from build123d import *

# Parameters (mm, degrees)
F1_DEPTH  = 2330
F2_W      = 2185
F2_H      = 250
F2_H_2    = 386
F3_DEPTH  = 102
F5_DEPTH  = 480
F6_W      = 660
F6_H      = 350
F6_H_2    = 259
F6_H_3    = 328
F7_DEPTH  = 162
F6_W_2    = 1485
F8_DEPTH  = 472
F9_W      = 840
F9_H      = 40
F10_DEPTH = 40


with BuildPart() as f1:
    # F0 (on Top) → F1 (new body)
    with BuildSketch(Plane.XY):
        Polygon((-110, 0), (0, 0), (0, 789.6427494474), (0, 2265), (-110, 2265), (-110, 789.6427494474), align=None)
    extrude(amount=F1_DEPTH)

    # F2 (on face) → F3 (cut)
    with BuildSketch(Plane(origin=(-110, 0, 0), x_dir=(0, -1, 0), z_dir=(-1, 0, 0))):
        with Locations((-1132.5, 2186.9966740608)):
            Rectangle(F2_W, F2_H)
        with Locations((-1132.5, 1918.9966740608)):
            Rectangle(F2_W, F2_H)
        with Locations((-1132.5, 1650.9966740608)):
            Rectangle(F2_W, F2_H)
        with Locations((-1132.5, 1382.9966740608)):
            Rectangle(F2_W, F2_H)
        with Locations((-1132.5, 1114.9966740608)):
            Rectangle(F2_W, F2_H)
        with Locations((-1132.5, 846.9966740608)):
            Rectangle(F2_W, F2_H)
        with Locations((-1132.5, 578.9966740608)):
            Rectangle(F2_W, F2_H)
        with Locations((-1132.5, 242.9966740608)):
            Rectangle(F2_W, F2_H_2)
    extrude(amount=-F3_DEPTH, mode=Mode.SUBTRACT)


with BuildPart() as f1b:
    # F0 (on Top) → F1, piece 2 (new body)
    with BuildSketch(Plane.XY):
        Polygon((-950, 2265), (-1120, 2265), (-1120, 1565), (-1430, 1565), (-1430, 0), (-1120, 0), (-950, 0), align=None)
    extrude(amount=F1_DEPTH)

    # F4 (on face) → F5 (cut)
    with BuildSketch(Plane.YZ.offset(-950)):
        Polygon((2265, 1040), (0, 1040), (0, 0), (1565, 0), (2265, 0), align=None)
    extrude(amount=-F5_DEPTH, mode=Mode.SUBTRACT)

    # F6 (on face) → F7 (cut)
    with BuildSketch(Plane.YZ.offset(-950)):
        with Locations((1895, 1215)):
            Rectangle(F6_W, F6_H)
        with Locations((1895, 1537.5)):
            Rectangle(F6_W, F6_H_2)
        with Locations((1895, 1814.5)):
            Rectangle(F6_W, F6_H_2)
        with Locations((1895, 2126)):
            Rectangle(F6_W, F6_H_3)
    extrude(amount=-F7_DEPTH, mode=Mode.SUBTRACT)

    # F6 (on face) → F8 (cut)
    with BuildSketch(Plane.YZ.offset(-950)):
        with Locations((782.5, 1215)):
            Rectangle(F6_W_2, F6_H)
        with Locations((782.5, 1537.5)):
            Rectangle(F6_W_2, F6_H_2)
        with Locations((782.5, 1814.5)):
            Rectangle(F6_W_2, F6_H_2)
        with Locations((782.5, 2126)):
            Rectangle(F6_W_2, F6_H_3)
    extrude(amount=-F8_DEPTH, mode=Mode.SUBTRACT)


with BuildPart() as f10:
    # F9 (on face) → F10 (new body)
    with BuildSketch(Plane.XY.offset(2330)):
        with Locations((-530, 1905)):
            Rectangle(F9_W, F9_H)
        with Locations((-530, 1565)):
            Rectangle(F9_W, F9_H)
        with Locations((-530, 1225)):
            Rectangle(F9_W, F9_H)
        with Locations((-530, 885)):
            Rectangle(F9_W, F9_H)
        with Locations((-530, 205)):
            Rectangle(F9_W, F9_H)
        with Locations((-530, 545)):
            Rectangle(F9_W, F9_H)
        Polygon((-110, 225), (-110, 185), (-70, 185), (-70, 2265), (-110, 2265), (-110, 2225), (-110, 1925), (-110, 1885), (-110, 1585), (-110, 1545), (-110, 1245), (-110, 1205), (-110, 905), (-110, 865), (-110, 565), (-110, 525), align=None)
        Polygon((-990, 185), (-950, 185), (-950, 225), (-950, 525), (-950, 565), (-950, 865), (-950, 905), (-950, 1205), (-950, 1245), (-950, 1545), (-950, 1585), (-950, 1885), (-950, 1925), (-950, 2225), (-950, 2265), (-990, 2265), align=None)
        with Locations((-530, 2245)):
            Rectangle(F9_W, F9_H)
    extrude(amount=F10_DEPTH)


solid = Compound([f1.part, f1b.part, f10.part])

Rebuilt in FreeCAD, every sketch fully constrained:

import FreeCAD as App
import Part
import Sketcher

V = App.Vector
Q = App.Units.Quantity


def add_polygon(sketch, points):
    """Adds a closed chain of lines whose ends are joined by coincident constraints."""
    first, n = sketch.GeometryCount, len(points)
    for a, b in zip(points, points[1:] + points[:1]):
        sketch.addGeometry(Part.LineSegment(App.Vector(*a, 0), App.Vector(*b, 0)), False)
    for i in range(n):
        sketch.addConstraint(Sketcher.Constraint("Coincident", first + i, 2, first + (i + 1) % n, 1))

doc = App.newDocument("Part")
body = doc.addObject("PartDesign::Body", "Body")

# Sketch on XY plane
sketch1 = doc.addObject("Sketcher::SketchObject", "Sketch")
body.addObject(sketch1)
sketch1.AttachmentSupport = (doc.XY_Plane, [""])
sketch1.MapMode = "FlatFace"
add_polygon(sketch1, [(-110, 0), (0, 0), (0, 2265), (-110, 2265)])  # lines 0-3
sketch1.addConstraint([
    Sketcher.Constraint("Horizontal", 0),
    Sketcher.Constraint("Vertical", 1),
    Sketcher.Constraint("Horizontal", 2),
    Sketcher.Constraint("Vertical", 3),
    Sketcher.Constraint("Coincident", 0, 2, -1, 1),
    Sketcher.Constraint("DistanceX", 0, 1, 0, 2, Q("110 mm")),
    Sketcher.Constraint("DistanceY", 1, 1, 1, 2, Q("2265 mm")),
])
pad1 = doc.addObject("PartDesign::Pad", "Pad")
body.addObject(pad1)
pad1.Profile = sketch1
pad1.Length = 2330

# Sketch on YZ plane
sketch2 = doc.addObject("Sketcher::SketchObject", "Sketch001")
body.addObject(sketch2)
sketch2.AttachmentSupport = (doc.YZ_Plane, [""])
sketch2.MapMode = "FlatFace"
sketch2.AttachmentOffset = App.Placement(V(0, 0, -110), App.Rotation())
add_polygon(sketch2, [(2225, 2311.996674), (2225, 2061.996674), (40, 2061.996674), (40, 2311.996674)])  # lines 0-3
add_polygon(sketch2, [(2225, 2043.996674), (2225, 1793.996674), (40, 1793.996674), (40, 2043.996674)])  # lines 4-7
add_polygon(sketch2, [(2225, 1775.996674), (2225, 1525.996674), (40, 1525.996674), (40, 1775.996674)])  # lines 8-11
add_polygon(sketch2, [(2225, 1507.996674), (2225, 1257.996674), (40, 1257.996674), (40, 1507.996674)])  # lines 12-15
add_polygon(sketch2, [(2225, 1239.996674), (2225, 989.996674), (40, 989.996674), (40, 1239.996674)])  # lines 16-19
add_polygon(sketch2, [(2225, 971.996674), (2225, 721.996674), (40, 721.996674), (40, 971.996674)])  # lines 20-23
add_polygon(sketch2, [(2225, 703.996674), (2225, 453.996674), (40, 453.996674), (40, 703.996674)])  # lines 24-27
add_polygon(sketch2, [(2225, 435.996674), (2225, 49.996674), (40, 49.996674), (40, 435.996674)])  # lines 28-31
sketch2.addConstraint([
    Sketcher.Constraint("Vertical", 0),
    Sketcher.Constraint("Horizontal", 1),
    Sketcher.Constraint("Vertical", 2),
    Sketcher.Constraint("Horizontal", 3),
    Sketcher.Constraint("Vertical", 4),
    Sketcher.Constraint("Horizontal", 5),
    Sketcher.Constraint("Vertical", 6),
    Sketcher.Constraint("Horizontal", 7),
    Sketcher.Constraint("Vertical", 8),
    Sketcher.Constraint("Horizontal", 9),
    Sketcher.Constraint("Vertical", 10),
    Sketcher.Constraint("Horizontal", 11),
    Sketcher.Constraint("Vertical", 12),
    Sketcher.Constraint("Horizontal", 13),
    Sketcher.Constraint("Vertical", 14),
    Sketcher.Constraint("Horizontal", 15),
    Sketcher.Constraint("Vertical", 16),
    Sketcher.Constraint("Horizontal", 17),
    Sketcher.Constraint("Vertical", 18),
    Sketcher.Constraint("Horizontal", 19),
    Sketcher.Constraint("Vertical", 20),
    Sketcher.Constraint("Horizontal", 21),
    Sketcher.Constraint("Vertical", 22),
    Sketcher.Constraint("Horizontal", 23),
    Sketcher.Constraint("Vertical", 24),
    Sketcher.Constraint("Horizontal", 25),
    Sketcher.Constraint("Vertical", 26),
    Sketcher.Constraint("Horizontal", 27),
    Sketcher.Constraint("Vertical", 28),
    Sketcher.Constraint("Horizontal", 29),
    Sketcher.Constraint("Vertical", 30),
    Sketcher.Constraint("Horizontal", 31),
    Sketcher.Constraint("Vertical", 3, 2, 4, 2),
    Sketcher.Constraint("Vertical", 2, 2, 5, 2),
    Sketcher.Constraint("Vertical", 7, 2, 8, 2),
    Sketcher.Constraint("Vertical", 6, 2, 9, 2),
    Sketcher.Constraint("Vertical", 11, 2, 12, 2),
    Sketcher.Constraint("Vertical", 10, 2, 13, 2),
    Sketcher.Constraint("Vertical", 15, 2, 16, 2),
    Sketcher.Constraint("Vertical", 14, 2, 17, 2),
    Sketcher.Constraint("Vertical", 19, 2, 20, 2),
    Sketcher.Constraint("Vertical", 18, 2, 21, 2),
    Sketcher.Constraint("Vertical", 23, 2, 24, 2),
    Sketcher.Constraint("Vertical", 22, 2, 25, 2),
    Sketcher.Constraint("Vertical", 27, 2, 28, 2),
    Sketcher.Constraint("Vertical", 26, 2, 29, 2),
    Sketcher.Constraint("Equal", 2, 4),
    Sketcher.Constraint("Equal", 6, 8),
    Sketcher.Constraint("Equal", 10, 12),
    Sketcher.Constraint("Equal", 14, 16),
    Sketcher.Constraint("Equal", 18, 20),
    Sketcher.Constraint("Equal", 22, 24),
    Sketcher.Constraint("DistanceX", 1, 2, 1, 1, Q("2185 mm")),
    Sketcher.Constraint("DistanceY", 0, 2, 0, 1, Q("250 mm")),
    Sketcher.Constraint("DistanceY", 28, 2, 28, 1, Q("386 mm")),
    Sketcher.Constraint("DistanceX", -1, 1, 0, 2, Q("2225 mm")),
    Sketcher.Constraint("DistanceY", 4, 2, 0, 2, Q("268 mm")),
    Sketcher.Constraint("DistanceY", 8, 2, 4, 2, Q("268 mm")),
    Sketcher.Constraint("DistanceY", 12, 2, 8, 2, Q("268 mm")),
    Sketcher.Constraint("DistanceY", 16, 2, 12, 2, Q("268 mm")),
    Sketcher.Constraint("DistanceY", 20, 2, 16, 2, Q("268 mm")),
    Sketcher.Constraint("DistanceY", 24, 2, 20, 2, Q("268 mm")),
    Sketcher.Constraint("DistanceY", 28, 2, 24, 2, Q("404 mm")),
    Sketcher.Constraint("DistanceY", -1, 1, 0, 2, Q("2061.996674 mm")),
])
pocket1 = doc.addObject("PartDesign::Pocket", "Pocket")
body.addObject(pocket1)
pocket1.Profile = sketch2
pocket1.Length = 102
pocket1.Reversed = True
body2 = doc.addObject("PartDesign::Body", "Body001")

# Sketch on XY plane
sketch3 = doc.addObject("Sketcher::SketchObject", "Sketch002")
body2.addObject(sketch3)
sketch3.AttachmentSupport = (doc.getObject("XY_Plane001"), [""])
sketch3.MapMode = "FlatFace"
add_polygon(sketch3, [(-950, 2265), (-1120, 2265), (-1120, 1565), (-1430, 1565), (-1430, 0), (-950, 0)])  # lines 0-5
sketch3.addConstraint([
    Sketcher.Constraint("Horizontal", 0),
    Sketcher.Constraint("Vertical", 1),
    Sketcher.Constraint("Horizontal", 2),
    Sketcher.Constraint("Vertical", 3),
    Sketcher.Constraint("Horizontal", 4),
    Sketcher.Constraint("Vertical", 5),
    Sketcher.Constraint("PointOnObject", 3, 2, -1),
    Sketcher.Constraint("DistanceX", 0, 2, 0, 1, Q("170 mm")),
    Sketcher.Constraint("DistanceX", 2, 2, 2, 1, Q("310 mm")),
    Sketcher.Constraint("DistanceY", 1, 2, 1, 1, Q("700 mm")),
    Sketcher.Constraint("DistanceY", 3, 2, 3, 1, Q("1565 mm")),
    Sketcher.Constraint("DistanceX", 0, 2, -1, 1, Q("1120 mm")),
])
pad2 = doc.addObject("PartDesign::Pad", "Pad001")
body2.addObject(pad2)
pad2.Profile = sketch3
pad2.Length = 2330

# Sketch on YZ plane
sketch4 = doc.addObject("Sketcher::SketchObject", "Sketch003")
body2.addObject(sketch4)
sketch4.AttachmentSupport = (doc.getObject("YZ_Plane001"), [""])
sketch4.MapMode = "FlatFace"
sketch4.AttachmentOffset = App.Placement(V(0, 0, -950), App.Rotation())
add_polygon(sketch4, [(2265, 1040), (0, 1040), (0, 0), (2265, 0)])  # lines 0-3
sketch4.addConstraint([
    Sketcher.Constraint("Horizontal", 0),
    Sketcher.Constraint("Vertical", 1),
    Sketcher.Constraint("Horizontal", 2),
    Sketcher.Constraint("Vertical", 3),
    Sketcher.Constraint("Coincident", 1, 2, -1, 1),
    Sketcher.Constraint("DistanceX", 0, 2, 0, 1, Q("2265 mm")),
    Sketcher.Constraint("DistanceY", 1, 2, 1, 1, Q("1040 mm")),
])
pocket2 = doc.addObject("PartDesign::Pocket", "Pocket001")
body2.addObject(pocket2)
pocket2.Profile = sketch4
pocket2.Length = 480

# Sketch on YZ plane
sketch5 = doc.addObject("Sketcher::SketchObject", "Sketch004")
body2.addObject(sketch5)
sketch5.AttachmentSupport = (doc.getObject("YZ_Plane001"), [""])
sketch5.MapMode = "FlatFace"
sketch5.AttachmentOffset = App.Placement(V(0, 0, -950), App.Rotation())
add_polygon(sketch5, [(1565, 1390), (1565, 1040), (2225, 1040), (2225, 1390)])  # lines 0-3
add_polygon(sketch5, [(1565, 1667), (1565, 1408), (2225, 1408), (2225, 1667)])  # lines 4-7
add_polygon(sketch5, [(1565, 1944), (1565, 1685), (2225, 1685), (2225, 1944)])  # lines 8-11
add_polygon(sketch5, [(1565, 2290), (1565, 1962), (2225, 1962), (2225, 2290)])  # lines 12-15
sketch5.addConstraint([
    Sketcher.Constraint("Vertical", 0),
    Sketcher.Constraint("Horizontal", 1),
    Sketcher.Constraint("Vertical", 2),
    Sketcher.Constraint("Horizontal", 3),
    Sketcher.Constraint("Vertical", 4),
    Sketcher.Constraint("Horizontal", 5),
    Sketcher.Constraint("Vertical", 6),
    Sketcher.Constraint("Horizontal", 7),
    Sketcher.Constraint("Vertical", 8),
    Sketcher.Constraint("Horizontal", 9),
    Sketcher.Constraint("Vertical", 10),
    Sketcher.Constraint("Horizontal", 11),
    Sketcher.Constraint("Vertical", 12),
    Sketcher.Constraint("Horizontal", 13),
    Sketcher.Constraint("Vertical", 14),
    Sketcher.Constraint("Horizontal", 15),
    Sketcher.Constraint("Vertical", 3, 2, 4, 2),
    Sketcher.Constraint("Vertical", 2, 2, 5, 2),
    Sketcher.Constraint("Vertical", 7, 2, 8, 2),
    Sketcher.Constraint("Vertical", 6, 2, 9, 2),
    Sketcher.Constraint("Vertical", 11, 2, 12, 2),
    Sketcher.Constraint("Vertical", 10, 2, 13, 2),
    Sketcher.Constraint("Equal", 6, 8),
    Sketcher.Constraint("DistanceX", 1, 1, 1, 2, Q("660 mm")),
    Sketcher.Constraint("DistanceY", 0, 2, 0, 1, Q("350 mm")),
    Sketcher.Constraint("DistanceY", 4, 2, 4, 1, Q("259 mm")),
    Sketcher.Constraint("DistanceY", 12, 2, 12, 1, Q("328 mm")),
    Sketcher.Constraint("DistanceX", -1, 1, 0, 2, Q("1565 mm")),
    Sketcher.Constraint("DistanceY", -1, 1, 0, 2, Q("1040 mm")),
    Sketcher.Constraint("DistanceY", -1, 1, 4, 2, Q("1408 mm")),
    Sketcher.Constraint("DistanceY", -1, 1, 8, 2, Q("1685 mm")),
    Sketcher.Constraint("DistanceY", -1, 1, 12, 2, Q("1962 mm")),
])
pocket3 = doc.addObject("PartDesign::Pocket", "Pocket002")
body2.addObject(pocket3)
pocket3.Profile = sketch5
pocket3.Length = 162

# Sketch on YZ plane
sketch6 = doc.addObject("Sketcher::SketchObject", "Sketch005")
body2.addObject(sketch6)
sketch6.AttachmentSupport = (doc.getObject("YZ_Plane001"), [""])
sketch6.MapMode = "FlatFace"
sketch6.AttachmentOffset = App.Placement(V(0, 0, -950), App.Rotation())
add_polygon(sketch6, [(40, 1390), (40, 1040), (1525, 1040), (1525, 1390)])  # lines 0-3
add_polygon(sketch6, [(40, 1667), (40, 1408), (1525, 1408), (1525, 1667)])  # lines 4-7
add_polygon(sketch6, [(40, 1944), (40, 1685), (1525, 1685), (1525, 1944)])  # lines 8-11
add_polygon(sketch6, [(40, 2290), (40, 1962), (1525, 1962), (1525, 2290)])  # lines 12-15
sketch6.addConstraint([
    Sketcher.Constraint("Vertical", 0),
    Sketcher.Constraint("Horizontal", 1),
    Sketcher.Constraint("Vertical", 2),
    Sketcher.Constraint("Horizontal", 3),
    Sketcher.Constraint("Vertical", 4),
    Sketcher.Constraint("Horizontal", 5),
    Sketcher.Constraint("Vertical", 6),
    Sketcher.Constraint("Horizontal", 7),
    Sketcher.Constraint("Vertical", 8),
    Sketcher.Constraint("Horizontal", 9),
    Sketcher.Constraint("Vertical", 10),
    Sketcher.Constraint("Horizontal", 11),
    Sketcher.Constraint("Vertical", 12),
    Sketcher.Constraint("Horizontal", 13),
    Sketcher.Constraint("Vertical", 14),
    Sketcher.Constraint("Horizontal", 15),
    Sketcher.Constraint("Vertical", 3, 2, 4, 2),
    Sketcher.Constraint("Vertical", 2, 2, 5, 2),
    Sketcher.Constraint("Vertical", 7, 2, 8, 2),
    Sketcher.Constraint("Vertical", 6, 2, 9, 2),
    Sketcher.Constraint("Vertical", 11, 2, 12, 2),
    Sketcher.Constraint("Vertical", 10, 2, 13, 2),
    Sketcher.Constraint("Equal", 6, 8),
    Sketcher.Constraint("DistanceX", 1, 1, 1, 2, Q("1485 mm")),
    Sketcher.Constraint("DistanceY", 0, 2, 0, 1, Q("350 mm")),
    Sketcher.Constraint("DistanceY", 4, 2, 4, 1, Q("259 mm")),
    Sketcher.Constraint("DistanceY", 12, 2, 12, 1, Q("328 mm")),
    Sketcher.Constraint("DistanceX", -1, 1, 0, 2, Q("40 mm")),
    Sketcher.Constraint("DistanceY", -1, 1, 0, 2, Q("1040 mm")),
    Sketcher.Constraint("DistanceY", -1, 1, 4, 2, Q("1408 mm")),
    Sketcher.Constraint("DistanceY", -1, 1, 8, 2, Q("1685 mm")),
    Sketcher.Constraint("DistanceY", -1, 1, 12, 2, Q("1962 mm")),
])
pocket4 = doc.addObject("PartDesign::Pocket", "Pocket003")
body2.addObject(pocket4)
pocket4.Profile = sketch6
pocket4.Length = 472
body3 = doc.addObject("PartDesign::Body", "Body002")

# Sketch on XY plane
sketch7 = doc.addObject("Sketcher::SketchObject", "Sketch006")
body3.addObject(sketch7)
sketch7.AttachmentSupport = (doc.getObject("XY_Plane002"), [""])
sketch7.MapMode = "FlatFace"
sketch7.AttachmentOffset = App.Placement(V(0, 0, 2330), App.Rotation())
add_polygon(sketch7, [(-70, 185), (-70, 2265), (-990, 2265), (-990, 185)])  # lines 0-3
add_polygon(sketch7, [(-950, 1885), (-110, 1885), (-110, 1585), (-950, 1585)])  # lines 4-7
add_polygon(sketch7, [(-950, 1545), (-110, 1545), (-110, 1245), (-950, 1245)])  # lines 8-11
add_polygon(sketch7, [(-950, 1205), (-110, 1205), (-110, 905), (-950, 905)])  # lines 12-15
add_polygon(sketch7, [(-950, 865), (-110, 865), (-110, 565), (-950, 565)])  # lines 16-19
add_polygon(sketch7, [(-950, 525), (-110, 525), (-110, 225), (-950, 225)])  # lines 20-23
add_polygon(sketch7, [(-110, 2225), (-110, 1925), (-950, 1925), (-950, 2225)])  # lines 24-27
sketch7.addConstraint([
    Sketcher.Constraint("Vertical", 0),
    Sketcher.Constraint("Horizontal", 1),
    Sketcher.Constraint("Vertical", 2),
    Sketcher.Constraint("Horizontal", 3),
    Sketcher.Constraint("Horizontal", 4),
    Sketcher.Constraint("Vertical", 5),
    Sketcher.Constraint("Horizontal", 6),
    Sketcher.Constraint("Vertical", 7),
    Sketcher.Constraint("Horizontal", 8),
    Sketcher.Constraint("Vertical", 9),
    Sketcher.Constraint("Horizontal", 10),
    Sketcher.Constraint("Vertical", 11),
    Sketcher.Constraint("Horizontal", 12),
    Sketcher.Constraint("Vertical", 13),
    Sketcher.Constraint("Horizontal", 14),
    Sketcher.Constraint("Vertical", 15),
    Sketcher.Constraint("Horizontal", 16),
    Sketcher.Constraint("Vertical", 17),
    Sketcher.Constraint("Horizontal", 18),
    Sketcher.Constraint("Vertical", 19),
    Sketcher.Constraint("Horizontal", 20),
    Sketcher.Constraint("Vertical", 21),
    Sketcher.Constraint("Horizontal", 22),
    Sketcher.Constraint("Vertical", 23),
    Sketcher.Constraint("Vertical", 24),
    Sketcher.Constraint("Horizontal", 25),
    Sketcher.Constraint("Vertical", 26),
    Sketcher.Constraint("Horizontal", 27),
    Sketcher.Constraint("Vertical", 5, 2, 8, 2),
    Sketcher.Constraint("Vertical", 7, 2, 10, 2),
    Sketcher.Constraint("Vertical", 9, 2, 12, 2),
    Sketcher.Constraint("Vertical", 11, 2, 14, 2),
    Sketcher.Constraint("Vertical", 13, 2, 16, 2),
    Sketcher.Constraint("Vertical", 15, 2, 18, 2),
    Sketcher.Constraint("Vertical", 17, 2, 20, 2),
    Sketcher.Constraint("Vertical", 19, 2, 22, 2),
    Sketcher.Constraint("Vertical", 21, 2, 24, 2),
    Sketcher.Constraint("Vertical", 23, 2, 25, 2),
    Sketcher.Constraint("Equal", 7, 9),
    Sketcher.Constraint("Equal", 11, 13),
    Sketcher.Constraint("Equal", 15, 17),
    Sketcher.Constraint("Equal", 19, 21),
    Sketcher.Constraint("Equal", 23, 24),
    Sketcher.Constraint("DistanceX", 1, 2, 1, 1, Q("920 mm")),
    Sketcher.Constraint("DistanceX", 4, 1, 4, 2, Q("840 mm")),
    Sketcher.Constraint("DistanceY", 0, 1, 0, 2, Q("2080 mm")),
    Sketcher.Constraint("DistanceY", 5, 2, 5, 1, Q("300 mm")),
    Sketcher.Constraint("DistanceX", 0, 2, -1, 1, Q("70 mm")),
    Sketcher.Constraint("DistanceY", -1, 1, 0, 2, Q("2265 mm")),
    Sketcher.Constraint("DistanceX", 4, 2, -1, 1, Q("110 mm")),
    Sketcher.Constraint("DistanceY", -1, 1, 4, 2, Q("1885 mm")),
    Sketcher.Constraint("DistanceY", -1, 1, 8, 2, Q("1545 mm")),
    Sketcher.Constraint("DistanceY", -1, 1, 12, 2, Q("1205 mm")),
    Sketcher.Constraint("DistanceY", -1, 1, 16, 2, Q("865 mm")),
    Sketcher.Constraint("DistanceY", -1, 1, 20, 2, Q("525 mm")),
    Sketcher.Constraint("DistanceY", -1, 1, 24, 2, Q("1925 mm")),
])
pad3 = doc.addObject("PartDesign::Pad", "Pad002")
body3.addObject(pad3)
pad3.Profile = sketch7
pad3.Length = 40

doc.recompute()
